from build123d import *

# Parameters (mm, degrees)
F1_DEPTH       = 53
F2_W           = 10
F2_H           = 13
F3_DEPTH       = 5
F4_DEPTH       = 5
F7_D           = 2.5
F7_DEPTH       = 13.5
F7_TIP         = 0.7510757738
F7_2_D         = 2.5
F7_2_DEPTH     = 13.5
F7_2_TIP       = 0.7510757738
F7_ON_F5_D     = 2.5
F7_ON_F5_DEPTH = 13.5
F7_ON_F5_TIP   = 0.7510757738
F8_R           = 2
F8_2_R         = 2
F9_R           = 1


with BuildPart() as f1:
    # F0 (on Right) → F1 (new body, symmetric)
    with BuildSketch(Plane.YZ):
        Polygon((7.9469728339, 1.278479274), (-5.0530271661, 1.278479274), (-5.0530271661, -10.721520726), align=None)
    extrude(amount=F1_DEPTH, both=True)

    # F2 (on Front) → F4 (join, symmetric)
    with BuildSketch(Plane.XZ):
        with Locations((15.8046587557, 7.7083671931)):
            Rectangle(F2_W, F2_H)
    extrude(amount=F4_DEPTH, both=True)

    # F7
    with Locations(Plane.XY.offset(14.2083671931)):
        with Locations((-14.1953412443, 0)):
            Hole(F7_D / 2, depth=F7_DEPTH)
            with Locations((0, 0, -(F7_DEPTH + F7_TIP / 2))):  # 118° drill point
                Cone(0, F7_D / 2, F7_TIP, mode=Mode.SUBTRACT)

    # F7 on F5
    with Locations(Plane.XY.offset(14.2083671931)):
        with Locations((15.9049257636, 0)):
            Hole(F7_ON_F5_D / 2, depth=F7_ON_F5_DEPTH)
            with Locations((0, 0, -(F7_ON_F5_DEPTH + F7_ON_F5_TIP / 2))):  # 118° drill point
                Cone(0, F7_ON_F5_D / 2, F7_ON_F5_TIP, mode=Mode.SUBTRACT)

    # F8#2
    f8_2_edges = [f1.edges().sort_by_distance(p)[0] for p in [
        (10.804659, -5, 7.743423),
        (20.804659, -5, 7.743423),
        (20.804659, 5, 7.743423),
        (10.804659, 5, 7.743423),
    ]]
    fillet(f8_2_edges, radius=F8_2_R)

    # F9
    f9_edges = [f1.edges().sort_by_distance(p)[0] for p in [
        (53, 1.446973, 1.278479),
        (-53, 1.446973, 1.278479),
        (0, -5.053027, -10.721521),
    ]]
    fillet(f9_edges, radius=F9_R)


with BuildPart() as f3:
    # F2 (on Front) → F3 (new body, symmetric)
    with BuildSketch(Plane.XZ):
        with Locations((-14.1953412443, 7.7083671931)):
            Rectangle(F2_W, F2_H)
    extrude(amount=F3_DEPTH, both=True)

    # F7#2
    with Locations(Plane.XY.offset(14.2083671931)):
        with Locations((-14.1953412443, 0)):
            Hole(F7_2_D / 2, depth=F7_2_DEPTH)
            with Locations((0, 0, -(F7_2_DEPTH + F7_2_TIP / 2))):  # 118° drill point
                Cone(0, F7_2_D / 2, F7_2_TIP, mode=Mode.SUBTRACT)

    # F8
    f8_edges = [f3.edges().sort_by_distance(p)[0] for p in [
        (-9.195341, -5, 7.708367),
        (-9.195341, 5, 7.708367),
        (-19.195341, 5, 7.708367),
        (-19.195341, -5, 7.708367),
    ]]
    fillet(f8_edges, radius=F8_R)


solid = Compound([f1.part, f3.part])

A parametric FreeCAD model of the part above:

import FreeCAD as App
import Part
import Sketcher


def edges_at(feature, points):
    """Names of the edges that pass closest to the given points."""
    edges = feature.Shape.Edges
    near = lambda p: min(range(len(edges)), key=lambda i: edges[i].distToShape(Part.Vertex(*p))[0])
    return sorted({f"Edge{near(p) + 1}" for p in points})


def add_polygon(sketch, points):
    """Adds a closed chain of lines whose ends are joined by coincident constraints."""
    first, n = sketch.GeometryCount, len(points)
    for a, b in zip(points, points[1:] + points[:1]):
        sketch.addGeometry(Part.LineSegment(App.Vector(*a, 0), App.Vector(*b, 0)), False)
    for i in range(n):
        sketch.addConstraint(Sketcher.Constraint("Coincident", first + i, 2, first + (i + 1) % n, 1))

doc = App.newDocument("Part")
params = doc.addObject("Spreadsheet::Sheet", "Params")
for row, (alias, value) in enumerate([
    ("sketch1_width", "13 mm"),
    ("sketch1_height", "12 mm"),
    ("pad1_length", "106 mm"),
    ("sketch2_width", "10 mm"),
    ("sketch2_height", "13 mm"),
    ("pad2_length", "10 mm"),
    ("sketch3_diameter", "2.5 mm"),
    ("hole_diameter", "2.5 mm"),
    ("hole_depth", "13.5 mm"),
    ("sketch4_diameter", "2.5 mm"),
    ("hole2_diameter", "2.5 mm"),
    ("hole2_depth", "13.5 mm"),
    ("fillet_radius", "2 mm"),
    ("fillet2_radius", "1 mm"),
    ("sketch5_width", "10 mm"),
    ("sketch5_height", "13 mm"),
    ("pad3_length", "10 mm"),
    ("sketch6_diameter", "2.5 mm"),
    ("hole3_diameter", "2.5 mm"),
    ("hole3_depth", "13.5 mm"),
    ("fillet3_radius", "2 mm"),
], start=1):
    params.set(f"A{row}", alias)
    params.set(f"B{row}", "=" + value)
    params.setAlias(f"B{row}", alias)

body = doc.addObject("PartDesign::Body", "Body")

sketch1 = doc.addObject("Sketcher::SketchObject", "Sketch")
body.addObject(sketch1)
sketch1.AttachmentSupport = (doc.YZ_Plane, [""])
sketch1.MapMode = "FlatFace"
add_polygon(sketch1, [(7.946973, 1.278479), (-5.053027, 1.278479), (-5.053027, -10.721521)])
sketch1.addConstraint([
    Sketcher.Constraint("Horizontal", 0),
    Sketcher.Constraint("Vertical", 1),
    Sketcher.Constraint("DistanceX", 0, 2, 0, 1, 13.0),
    Sketcher.Constraint("DistanceY", 1, 2, 1, 1, 12.0),
    Sketcher.Constraint("DistanceY", -1, 1, 0, 2, 1.278479),
    Sketcher.Constraint("DistanceX", 0, 2, -1, 1, 5.053027),
])
sketch1.setExpression("Constraints[5]", "Params.sketch1_width")
sketch1.setExpression("Constraints[6]", "Params.sketch1_height")
pad1 = doc.addObject("PartDesign::Pad", "Pad")
body.addObject(pad1)
pad1.Profile = sketch1
pad1.setExpression("Length", "Params.pad1_length")
pad1.Midplane = True

sketch2 = doc.addObject("Sketcher::SketchObject", "Sketch001")
body.addObject(sketch2)
sketch2.AttachmentSupport = (doc.XZ_Plane, [""])
sketch2.MapMode = "FlatFace"
add_polygon(sketch2, [(10.804659, 14.208367), (10.804659, 1.208367), (20.804659, 1.208367), (20.804659, 14.208367)])
sketch2.addConstraint([
    Sketcher.Constraint("Vertical", 0),
    Sketcher.Constraint("Horizontal", 1),
    Sketcher.Constraint("Vertical", 2),
    Sketcher.Constraint("Horizontal", 3),
    Sketcher.Constraint("DistanceX", 1, 1, 1, 2, 10.0),
    Sketcher.Constraint("DistanceY", 0, 2, 0, 1, 13.0),
    Sketcher.Constraint("DistanceX", -1, 1, 0, 2, 10.804659),
    Sketcher.Constraint("DistanceY", -1, 1, 0, 2, 1.208367),
])
sketch2.setExpression("Constraints[8]", "Params.sketch2_width")
sketch2.setExpression("Constraints[9]", "Params.sketch2_height")
pad2 = doc.addObject("PartDesign::Pad", "Pad001")
body.addObject(pad2)
pad2.Profile = sketch2
pad2.setExpression("Length", "Params.pad2_length")
pad2.Midplane = True

sketch3 = doc.addObject("Sketcher::SketchObject", "Sketch002")
body.addObject(sketch3)
sketch3.AttachmentSupport = (doc.XY_Plane, [""])
sketch3.MapMode = "FlatFace"
sketch3.AttachmentOffset = App.Placement(App.Vector(0, 0, 14.208367), App.Rotation())
sketch3.addGeometry(Part.Circle(App.Vector(-14.195341, 0, 0), App.Vector(0, 0, 1), 1.25), False)
sketch3.addConstraint([
    Sketcher.Constraint("PointOnObject", 0, 3, -1),
    Sketcher.Constraint("Diameter", 0, 2.5),
    Sketcher.Constraint("DistanceX", 0, 3, -1, 1, 14.195341),
])
sketch3.setExpression("Constraints[1]", "Params.sketch3_diameter")
doc.recompute()
hole = doc.addObject("PartDesign::Hole", "Hole")
body.addObject(hole)
hole.Profile = sketch3
hole.ThreadType = "None"
hole.setExpression("Diameter", "Params.hole_diameter")
hole.DepthType = "Dimension"
hole.setExpression("Depth", "Params.hole_depth")
hole.DrillPoint = "Angled"
hole.DrillPointAngle = 118

sketch4 = doc.addObject("Sketcher::SketchObject", "Sketch003")
body.addObject(sketch4)
sketch4.AttachmentSupport = (doc.XY_Plane, [""])
sketch4.MapMode = "FlatFace"
sketch4.AttachmentOffset = App.Placement(App.Vector(0, 0, 14.208367), App.Rotation())
sketch4.addGeometry(Part.Circle(App.Vector(15.904926, 0, 0), App.Vector(0, 0, 1), 1.25), False)
sketch4.addConstraint([
    Sketcher.Constraint("PointOnObject", 0, 3, -1),
    Sketcher.Constraint("Diameter", 0, 2.5),
    Sketcher.Constraint("DistanceX", -1, 1, 0, 3, 15.904926),
])
sketch4.setExpression("Constraints[1]", "Params.sketch4_diameter")
doc.recompute()
hole2 = doc.addObject("PartDesign::Hole", "Hole001")
body.addObject(hole2)
hole2.Profile = sketch4
hole2.ThreadType = "None"
hole2.setExpression("Diameter", "Params.hole2_diameter")
hole2.DepthType = "Dimension"
hole2.setExpression("Depth", "Params.hole2_depth")
hole2.DrillPoint = "Angled"
hole2.DrillPointAngle = 118
doc.recompute()

fillet = doc.addObject("PartDesign::Fillet", "Fillet")
body.addObject(fillet)
fillet.Base = (hole2, edges_at(hole2, [
    (10.805, -5, 7.743),
    (20.805, -5, 7.743),
    (20.805, 5, 7.743),
    (10.805, 5, 7.743),
]))
fillet.setExpression("Radius", "Params.fillet_radius")
doc.recompute()

fillet2 = doc.addObject("PartDesign::Fillet", "Fillet001")
body.addObject(fillet2)
fillet2.Base = (fillet, edges_at(fillet, [(53, 1.447, 1.278), (-53, 1.447, 1.278), (0, -5.053, -10.722)]))
fillet2.setExpression("Radius", "Params.fillet2_radius")
body2 = doc.addObject("PartDesign::Body", "Body001")

sketch5 = doc.addObject("Sketcher::SketchObject", "Sketch004")
body2.addObject(sketch5)
sketch5.AttachmentSupport = (doc.getObject("XZ_Plane001"), [""])
sketch5.MapMode = "FlatFace"
add_polygon(sketch5, [(-19.195341, 14.208367), (-19.195341, 1.208367), (-9.195341, 1.208367), (-9.195341, 14.208367)])
sketch5.addConstraint([
    Sketcher.Constraint("Vertical", 0),
    Sketcher.Constraint("Horizontal", 1),
    Sketcher.Constraint("Vertical", 2),
    Sketcher.Constraint("Horizontal", 3),
    Sketcher.Constraint("DistanceX", 1, 1, 1, 2, 10.0),
    Sketcher.Constraint("DistanceY", 0, 2, 0, 1, 13.0),
    Sketcher.Constraint("DistanceX", 0, 2, -1, 1, 19.195341),
    Sketcher.Constraint("DistanceY", -1, 1, 0, 2, 1.208367),
])
sketch5.setExpression("Constraints[8]", "Params.sketch5_width")
sketch5.setExpression("Constraints[9]", "Params.sketch5_height")
pad3 = doc.addObject("PartDesign::Pad", "Pad002")
body2.addObject(pad3)
pad3.Profile = sketch5
pad3.setExpression("Length", "Params.pad3_length")
pad3.Midplane = True

sketch6 = doc.addObject("Sketcher::SketchObject", "Sketch005")
body2.addObject(sketch6)
sketch6.AttachmentSupport = (doc.getObject("XY_Plane001"), [""])
sketch6.MapMode = "FlatFace"
sketch6.AttachmentOffset = App.Placement(App.Vector(0, 0, 14.208367), App.Rotation())
sketch6.addGeometry(Part.Circle(App.Vector(-14.195341, 0, 0), App.Vector(0, 0, 1), 1.25), False)
sketch6.addConstraint([
    Sketcher.Constraint("PointOnObject", 0, 3, -1),
    Sketcher.Constraint("Diameter", 0, 2.5),
    Sketcher.Constraint("DistanceX", 0, 3, -1, 1, 14.195341),
])
sketch6.setExpression("Constraints[1]", "Params.sketch6_diameter")
doc.recompute()
hole3 = doc.addObject("PartDesign::Hole", "Hole002")
body2.addObject(hole3)
hole3.Profile = sketch6
hole3.ThreadType = "None"
hole3.setExpression("Diameter", "Params.hole3_diameter")
hole3.DepthType = "Dimension"
hole3.setExpression("Depth", "Params.hole3_depth")
hole3.DrillPoint = "Angled"
hole3.DrillPointAngle = 118
doc.recompute()

fillet3 = doc.addObject("PartDesign::Fillet", "Fillet002")
body2.addObject(fillet3)
fillet3.Base = (hole3, edges_at(hole3, [
    (-9.195, -5, 7.708),
    (-9.195, 5, 7.708),
    (-19.195, 5, 7.708),
    (-19.195, -5, 7.708),
]))
fillet3.setExpression("Radius", "Params.fillet3_radius")

doc.recompute()
